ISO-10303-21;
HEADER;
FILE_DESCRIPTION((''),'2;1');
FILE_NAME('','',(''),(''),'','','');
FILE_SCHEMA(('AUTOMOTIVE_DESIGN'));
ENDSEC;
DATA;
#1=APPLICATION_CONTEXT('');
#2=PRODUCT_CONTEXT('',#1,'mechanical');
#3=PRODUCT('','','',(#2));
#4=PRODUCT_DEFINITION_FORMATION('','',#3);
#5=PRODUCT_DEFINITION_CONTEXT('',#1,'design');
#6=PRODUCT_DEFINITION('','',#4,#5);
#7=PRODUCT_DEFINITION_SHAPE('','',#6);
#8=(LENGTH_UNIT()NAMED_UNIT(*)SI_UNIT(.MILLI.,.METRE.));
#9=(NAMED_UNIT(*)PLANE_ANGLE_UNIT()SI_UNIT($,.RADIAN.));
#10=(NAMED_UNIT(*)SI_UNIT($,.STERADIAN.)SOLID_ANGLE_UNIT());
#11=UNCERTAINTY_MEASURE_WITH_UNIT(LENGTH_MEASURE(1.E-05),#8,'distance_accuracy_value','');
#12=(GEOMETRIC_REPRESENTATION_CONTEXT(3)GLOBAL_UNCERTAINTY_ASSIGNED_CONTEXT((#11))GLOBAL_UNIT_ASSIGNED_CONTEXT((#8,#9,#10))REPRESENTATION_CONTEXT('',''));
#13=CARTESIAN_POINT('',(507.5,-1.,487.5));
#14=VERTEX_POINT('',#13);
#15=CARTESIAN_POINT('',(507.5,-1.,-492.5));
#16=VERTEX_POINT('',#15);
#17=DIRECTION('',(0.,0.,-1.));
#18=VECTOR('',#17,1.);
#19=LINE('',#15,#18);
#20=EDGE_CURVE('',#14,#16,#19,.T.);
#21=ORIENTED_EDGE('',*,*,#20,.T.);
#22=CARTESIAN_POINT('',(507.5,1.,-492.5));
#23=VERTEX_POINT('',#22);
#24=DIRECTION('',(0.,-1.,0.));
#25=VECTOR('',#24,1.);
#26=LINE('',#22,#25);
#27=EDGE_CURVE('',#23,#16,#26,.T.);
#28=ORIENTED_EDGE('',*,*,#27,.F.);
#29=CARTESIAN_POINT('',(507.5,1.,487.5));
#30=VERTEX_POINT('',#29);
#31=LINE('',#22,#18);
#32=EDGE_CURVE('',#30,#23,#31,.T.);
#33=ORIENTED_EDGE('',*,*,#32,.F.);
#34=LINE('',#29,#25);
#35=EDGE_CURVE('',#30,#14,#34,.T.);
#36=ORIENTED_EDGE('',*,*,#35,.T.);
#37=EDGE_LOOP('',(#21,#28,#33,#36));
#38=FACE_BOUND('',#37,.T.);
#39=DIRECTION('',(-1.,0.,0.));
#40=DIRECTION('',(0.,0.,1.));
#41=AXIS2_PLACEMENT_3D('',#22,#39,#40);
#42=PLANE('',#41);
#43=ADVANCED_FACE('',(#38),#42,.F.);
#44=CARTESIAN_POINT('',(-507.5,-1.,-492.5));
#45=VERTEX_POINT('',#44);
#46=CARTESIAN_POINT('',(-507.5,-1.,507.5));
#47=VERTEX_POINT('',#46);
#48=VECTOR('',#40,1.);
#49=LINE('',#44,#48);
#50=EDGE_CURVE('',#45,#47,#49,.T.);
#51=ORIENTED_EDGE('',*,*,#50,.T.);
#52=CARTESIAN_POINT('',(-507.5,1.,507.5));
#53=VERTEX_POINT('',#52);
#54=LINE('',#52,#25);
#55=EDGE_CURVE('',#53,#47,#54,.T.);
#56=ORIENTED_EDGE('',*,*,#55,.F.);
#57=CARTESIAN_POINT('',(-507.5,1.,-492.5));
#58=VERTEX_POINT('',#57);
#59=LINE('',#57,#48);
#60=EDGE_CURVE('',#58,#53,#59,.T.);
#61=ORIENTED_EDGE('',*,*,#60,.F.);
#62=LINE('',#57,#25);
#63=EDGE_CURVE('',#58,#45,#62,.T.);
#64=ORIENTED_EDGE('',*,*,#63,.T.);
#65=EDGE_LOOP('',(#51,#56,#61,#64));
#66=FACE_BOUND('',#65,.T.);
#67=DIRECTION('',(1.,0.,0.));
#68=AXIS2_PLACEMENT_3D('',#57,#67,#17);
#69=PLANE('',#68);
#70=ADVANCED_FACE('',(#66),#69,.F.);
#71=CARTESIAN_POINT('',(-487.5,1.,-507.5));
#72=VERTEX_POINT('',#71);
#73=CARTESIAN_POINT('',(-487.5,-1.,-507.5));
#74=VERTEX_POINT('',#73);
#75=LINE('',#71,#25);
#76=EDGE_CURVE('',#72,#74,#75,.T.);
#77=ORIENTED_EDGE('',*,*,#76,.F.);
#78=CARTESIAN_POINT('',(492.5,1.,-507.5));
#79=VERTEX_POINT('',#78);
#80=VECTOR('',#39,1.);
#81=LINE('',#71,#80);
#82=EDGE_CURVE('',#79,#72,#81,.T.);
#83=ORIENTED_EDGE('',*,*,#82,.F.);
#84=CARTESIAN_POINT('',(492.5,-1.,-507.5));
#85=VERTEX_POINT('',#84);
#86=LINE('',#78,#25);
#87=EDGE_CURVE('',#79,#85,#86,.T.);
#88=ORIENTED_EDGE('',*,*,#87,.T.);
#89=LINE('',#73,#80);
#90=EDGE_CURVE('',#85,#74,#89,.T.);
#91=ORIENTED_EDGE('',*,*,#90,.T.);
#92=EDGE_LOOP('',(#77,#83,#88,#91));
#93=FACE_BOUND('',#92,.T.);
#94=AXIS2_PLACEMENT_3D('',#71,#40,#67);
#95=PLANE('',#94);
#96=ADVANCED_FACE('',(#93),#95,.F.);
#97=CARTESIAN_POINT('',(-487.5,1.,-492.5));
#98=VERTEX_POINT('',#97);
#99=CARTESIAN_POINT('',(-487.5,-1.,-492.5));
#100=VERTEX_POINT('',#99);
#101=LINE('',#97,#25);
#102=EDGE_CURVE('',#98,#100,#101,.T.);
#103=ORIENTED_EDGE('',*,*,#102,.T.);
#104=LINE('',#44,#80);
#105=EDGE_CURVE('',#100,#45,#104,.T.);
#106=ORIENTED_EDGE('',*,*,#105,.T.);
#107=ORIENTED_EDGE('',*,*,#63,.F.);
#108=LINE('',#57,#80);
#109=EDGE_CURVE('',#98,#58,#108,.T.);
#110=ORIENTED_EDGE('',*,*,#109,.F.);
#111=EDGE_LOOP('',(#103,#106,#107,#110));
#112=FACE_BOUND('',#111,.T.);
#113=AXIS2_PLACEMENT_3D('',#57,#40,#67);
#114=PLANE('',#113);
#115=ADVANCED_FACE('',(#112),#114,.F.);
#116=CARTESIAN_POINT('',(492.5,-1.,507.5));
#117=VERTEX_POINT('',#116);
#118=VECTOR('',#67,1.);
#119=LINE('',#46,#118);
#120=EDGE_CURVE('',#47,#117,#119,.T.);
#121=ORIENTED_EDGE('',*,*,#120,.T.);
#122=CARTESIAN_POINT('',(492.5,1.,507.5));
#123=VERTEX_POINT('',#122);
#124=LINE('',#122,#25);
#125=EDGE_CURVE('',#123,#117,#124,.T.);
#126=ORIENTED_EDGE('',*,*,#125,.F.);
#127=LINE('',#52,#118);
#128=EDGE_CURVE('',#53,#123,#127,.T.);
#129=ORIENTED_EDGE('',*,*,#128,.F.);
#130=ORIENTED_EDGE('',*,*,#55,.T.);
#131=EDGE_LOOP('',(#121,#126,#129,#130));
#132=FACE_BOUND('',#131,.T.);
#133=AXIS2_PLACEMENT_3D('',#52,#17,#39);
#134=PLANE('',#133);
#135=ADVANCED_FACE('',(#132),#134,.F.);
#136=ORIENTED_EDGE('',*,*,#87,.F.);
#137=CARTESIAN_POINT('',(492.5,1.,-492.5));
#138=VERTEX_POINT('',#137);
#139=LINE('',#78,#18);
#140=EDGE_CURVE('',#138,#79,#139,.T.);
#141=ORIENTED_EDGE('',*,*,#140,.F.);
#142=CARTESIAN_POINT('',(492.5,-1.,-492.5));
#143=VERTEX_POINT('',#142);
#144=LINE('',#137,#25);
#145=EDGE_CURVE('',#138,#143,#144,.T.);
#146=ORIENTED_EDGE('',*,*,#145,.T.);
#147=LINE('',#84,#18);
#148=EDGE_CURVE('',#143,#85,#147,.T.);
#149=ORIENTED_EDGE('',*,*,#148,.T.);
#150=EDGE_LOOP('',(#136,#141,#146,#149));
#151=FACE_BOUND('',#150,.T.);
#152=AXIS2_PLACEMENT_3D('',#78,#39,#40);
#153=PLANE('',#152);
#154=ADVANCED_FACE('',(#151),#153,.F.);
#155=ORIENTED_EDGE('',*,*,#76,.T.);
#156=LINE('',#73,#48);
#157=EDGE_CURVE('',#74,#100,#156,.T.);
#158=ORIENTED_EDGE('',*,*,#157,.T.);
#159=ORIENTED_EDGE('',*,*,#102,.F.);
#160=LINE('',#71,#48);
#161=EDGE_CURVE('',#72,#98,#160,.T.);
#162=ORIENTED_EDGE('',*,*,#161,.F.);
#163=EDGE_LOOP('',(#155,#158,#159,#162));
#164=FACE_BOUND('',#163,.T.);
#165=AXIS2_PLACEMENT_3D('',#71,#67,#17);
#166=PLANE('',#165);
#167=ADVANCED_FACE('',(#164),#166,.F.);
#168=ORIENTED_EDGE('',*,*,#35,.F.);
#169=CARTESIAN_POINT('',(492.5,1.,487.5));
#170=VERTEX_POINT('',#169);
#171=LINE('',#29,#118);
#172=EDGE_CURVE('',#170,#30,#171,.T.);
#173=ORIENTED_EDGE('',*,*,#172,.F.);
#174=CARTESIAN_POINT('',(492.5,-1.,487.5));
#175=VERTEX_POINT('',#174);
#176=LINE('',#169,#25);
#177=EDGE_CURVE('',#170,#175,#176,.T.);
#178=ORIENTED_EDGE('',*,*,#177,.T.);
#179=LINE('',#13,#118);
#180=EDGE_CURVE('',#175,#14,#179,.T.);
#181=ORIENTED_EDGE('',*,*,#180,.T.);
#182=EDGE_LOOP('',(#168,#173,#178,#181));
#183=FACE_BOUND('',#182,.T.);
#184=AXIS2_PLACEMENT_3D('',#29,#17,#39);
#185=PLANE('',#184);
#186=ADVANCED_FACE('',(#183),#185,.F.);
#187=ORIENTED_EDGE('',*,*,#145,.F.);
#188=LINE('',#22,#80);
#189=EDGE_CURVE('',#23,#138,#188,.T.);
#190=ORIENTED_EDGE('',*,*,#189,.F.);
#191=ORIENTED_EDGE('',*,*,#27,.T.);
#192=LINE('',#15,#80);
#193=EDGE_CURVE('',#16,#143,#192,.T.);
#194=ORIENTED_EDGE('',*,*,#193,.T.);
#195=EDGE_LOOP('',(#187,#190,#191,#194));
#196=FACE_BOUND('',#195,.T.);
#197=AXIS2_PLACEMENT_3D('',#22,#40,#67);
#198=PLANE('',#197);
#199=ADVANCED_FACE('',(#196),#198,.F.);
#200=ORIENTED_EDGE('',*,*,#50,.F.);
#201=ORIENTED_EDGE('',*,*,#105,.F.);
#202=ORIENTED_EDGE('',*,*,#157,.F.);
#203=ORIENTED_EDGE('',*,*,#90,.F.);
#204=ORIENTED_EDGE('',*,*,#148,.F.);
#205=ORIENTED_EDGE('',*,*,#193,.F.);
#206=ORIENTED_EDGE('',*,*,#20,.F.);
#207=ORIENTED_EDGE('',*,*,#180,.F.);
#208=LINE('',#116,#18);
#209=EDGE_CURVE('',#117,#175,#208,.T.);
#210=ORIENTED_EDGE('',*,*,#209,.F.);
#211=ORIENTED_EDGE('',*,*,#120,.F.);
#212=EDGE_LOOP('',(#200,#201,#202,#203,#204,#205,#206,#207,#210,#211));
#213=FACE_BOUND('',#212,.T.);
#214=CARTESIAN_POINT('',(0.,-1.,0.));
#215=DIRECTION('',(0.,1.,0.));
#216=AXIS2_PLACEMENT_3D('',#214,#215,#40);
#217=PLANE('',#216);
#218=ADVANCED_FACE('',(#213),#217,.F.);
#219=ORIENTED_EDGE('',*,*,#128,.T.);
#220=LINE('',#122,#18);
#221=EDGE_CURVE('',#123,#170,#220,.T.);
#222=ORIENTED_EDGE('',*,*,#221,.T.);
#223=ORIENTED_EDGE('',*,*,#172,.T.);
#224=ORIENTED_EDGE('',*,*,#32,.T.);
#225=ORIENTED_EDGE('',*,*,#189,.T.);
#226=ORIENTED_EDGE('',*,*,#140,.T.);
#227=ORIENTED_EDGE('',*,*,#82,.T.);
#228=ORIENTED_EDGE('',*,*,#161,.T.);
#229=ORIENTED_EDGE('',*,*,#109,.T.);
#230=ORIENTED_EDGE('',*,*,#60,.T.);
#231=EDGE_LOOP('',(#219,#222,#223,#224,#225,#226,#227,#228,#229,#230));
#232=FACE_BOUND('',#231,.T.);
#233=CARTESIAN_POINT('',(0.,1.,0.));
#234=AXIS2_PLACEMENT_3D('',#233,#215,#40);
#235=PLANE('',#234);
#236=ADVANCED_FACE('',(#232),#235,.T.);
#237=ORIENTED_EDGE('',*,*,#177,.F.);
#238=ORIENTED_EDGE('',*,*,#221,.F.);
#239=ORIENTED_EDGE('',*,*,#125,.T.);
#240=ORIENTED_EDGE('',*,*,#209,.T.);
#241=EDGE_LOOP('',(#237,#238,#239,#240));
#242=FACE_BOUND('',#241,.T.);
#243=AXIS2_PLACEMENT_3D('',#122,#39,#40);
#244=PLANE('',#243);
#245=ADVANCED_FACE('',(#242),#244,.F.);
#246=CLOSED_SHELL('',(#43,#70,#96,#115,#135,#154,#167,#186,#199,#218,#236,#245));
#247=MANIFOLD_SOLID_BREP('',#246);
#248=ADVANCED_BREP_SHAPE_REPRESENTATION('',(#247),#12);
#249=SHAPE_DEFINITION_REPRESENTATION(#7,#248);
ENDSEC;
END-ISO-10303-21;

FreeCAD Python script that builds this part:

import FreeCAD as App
import Part
import Sketcher
Q = App.Units.Quantity


def add_polygon(sketch, points):
    """Adds a closed chain of lines whose ends are joined by coincident constraints."""
    first, n = sketch.GeometryCount, len(points)
    for a, b in zip(points, points[1:] + points[:1]):
        sketch.addGeometry(Part.LineSegment(App.Vector(*a, 0), App.Vector(*b, 0)), False)
    for i in range(n):
        sketch.addConstraint(Sketcher.Constraint("Coincident", first + i, 2, first + (i + 1) % n, 1))

doc = App.newDocument("Part")
body = doc.addObject("PartDesign::Body", "Body")

sketch1 = doc.addObject("Sketcher::SketchObject", "Sketch")
body.addObject(sketch1)
sketch1.AttachmentSupport = (doc.XZ_Plane, [""])
sketch1.MapMode = "FlatFace"
add_polygon(sketch1, [(492.5, -507.5), (-487.5, -507.5), (-487.5, -492.5), (-507.5, -492.5), (-507.5, 507.5), (492.5, 507.5), (492.5, 487.5), (507.5, 487.5), (507.5, -492.5), (492.5, -492.5)])
sketch1.addConstraint([
    Sketcher.Constraint("Horizontal", 0),
    Sketcher.Constraint("Vertical", 1),
    Sketcher.Constraint("Horizontal", 2),
    Sketcher.Constraint("Vertical", 3),
    Sketcher.Constraint("Horizontal", 4),
    Sketcher.Constraint("Vertical", 5),
    Sketcher.Constraint("Horizontal", 6),
    Sketcher.Constraint("Vertical", 7),
    Sketcher.Constraint("Horizontal", 8),
    Sketcher.Constraint("Vertical", 9),
    Sketcher.Constraint("Symmetric", 2, 2, 7, 2, -2),
    Sketcher.Constraint("Symmetric", 4, 2, 9, 2, -1),
    Sketcher.Constraint("Equal", 8, 1),
    Sketcher.Constraint("Equal", 4, 3),
    Sketcher.Constraint("Equal", 2, 5),
    Sketcher.Constraint("DistanceX", 0, 2, 0, 1, Q("980 mm")),
    Sketcher.Constraint("DistanceX", 2, 2, 2, 1, Q("20 mm")),
    Sketcher.Constraint("DistanceX", 6, 1, 6, 2, Q("15 mm")),
])
pad1 = doc.addObject("PartDesign::Pad", "Pad")
body.addObject(pad1)
pad1.Profile = sketch1
pad1.Length = 2
pad1.Midplane = True

doc.recompute()
